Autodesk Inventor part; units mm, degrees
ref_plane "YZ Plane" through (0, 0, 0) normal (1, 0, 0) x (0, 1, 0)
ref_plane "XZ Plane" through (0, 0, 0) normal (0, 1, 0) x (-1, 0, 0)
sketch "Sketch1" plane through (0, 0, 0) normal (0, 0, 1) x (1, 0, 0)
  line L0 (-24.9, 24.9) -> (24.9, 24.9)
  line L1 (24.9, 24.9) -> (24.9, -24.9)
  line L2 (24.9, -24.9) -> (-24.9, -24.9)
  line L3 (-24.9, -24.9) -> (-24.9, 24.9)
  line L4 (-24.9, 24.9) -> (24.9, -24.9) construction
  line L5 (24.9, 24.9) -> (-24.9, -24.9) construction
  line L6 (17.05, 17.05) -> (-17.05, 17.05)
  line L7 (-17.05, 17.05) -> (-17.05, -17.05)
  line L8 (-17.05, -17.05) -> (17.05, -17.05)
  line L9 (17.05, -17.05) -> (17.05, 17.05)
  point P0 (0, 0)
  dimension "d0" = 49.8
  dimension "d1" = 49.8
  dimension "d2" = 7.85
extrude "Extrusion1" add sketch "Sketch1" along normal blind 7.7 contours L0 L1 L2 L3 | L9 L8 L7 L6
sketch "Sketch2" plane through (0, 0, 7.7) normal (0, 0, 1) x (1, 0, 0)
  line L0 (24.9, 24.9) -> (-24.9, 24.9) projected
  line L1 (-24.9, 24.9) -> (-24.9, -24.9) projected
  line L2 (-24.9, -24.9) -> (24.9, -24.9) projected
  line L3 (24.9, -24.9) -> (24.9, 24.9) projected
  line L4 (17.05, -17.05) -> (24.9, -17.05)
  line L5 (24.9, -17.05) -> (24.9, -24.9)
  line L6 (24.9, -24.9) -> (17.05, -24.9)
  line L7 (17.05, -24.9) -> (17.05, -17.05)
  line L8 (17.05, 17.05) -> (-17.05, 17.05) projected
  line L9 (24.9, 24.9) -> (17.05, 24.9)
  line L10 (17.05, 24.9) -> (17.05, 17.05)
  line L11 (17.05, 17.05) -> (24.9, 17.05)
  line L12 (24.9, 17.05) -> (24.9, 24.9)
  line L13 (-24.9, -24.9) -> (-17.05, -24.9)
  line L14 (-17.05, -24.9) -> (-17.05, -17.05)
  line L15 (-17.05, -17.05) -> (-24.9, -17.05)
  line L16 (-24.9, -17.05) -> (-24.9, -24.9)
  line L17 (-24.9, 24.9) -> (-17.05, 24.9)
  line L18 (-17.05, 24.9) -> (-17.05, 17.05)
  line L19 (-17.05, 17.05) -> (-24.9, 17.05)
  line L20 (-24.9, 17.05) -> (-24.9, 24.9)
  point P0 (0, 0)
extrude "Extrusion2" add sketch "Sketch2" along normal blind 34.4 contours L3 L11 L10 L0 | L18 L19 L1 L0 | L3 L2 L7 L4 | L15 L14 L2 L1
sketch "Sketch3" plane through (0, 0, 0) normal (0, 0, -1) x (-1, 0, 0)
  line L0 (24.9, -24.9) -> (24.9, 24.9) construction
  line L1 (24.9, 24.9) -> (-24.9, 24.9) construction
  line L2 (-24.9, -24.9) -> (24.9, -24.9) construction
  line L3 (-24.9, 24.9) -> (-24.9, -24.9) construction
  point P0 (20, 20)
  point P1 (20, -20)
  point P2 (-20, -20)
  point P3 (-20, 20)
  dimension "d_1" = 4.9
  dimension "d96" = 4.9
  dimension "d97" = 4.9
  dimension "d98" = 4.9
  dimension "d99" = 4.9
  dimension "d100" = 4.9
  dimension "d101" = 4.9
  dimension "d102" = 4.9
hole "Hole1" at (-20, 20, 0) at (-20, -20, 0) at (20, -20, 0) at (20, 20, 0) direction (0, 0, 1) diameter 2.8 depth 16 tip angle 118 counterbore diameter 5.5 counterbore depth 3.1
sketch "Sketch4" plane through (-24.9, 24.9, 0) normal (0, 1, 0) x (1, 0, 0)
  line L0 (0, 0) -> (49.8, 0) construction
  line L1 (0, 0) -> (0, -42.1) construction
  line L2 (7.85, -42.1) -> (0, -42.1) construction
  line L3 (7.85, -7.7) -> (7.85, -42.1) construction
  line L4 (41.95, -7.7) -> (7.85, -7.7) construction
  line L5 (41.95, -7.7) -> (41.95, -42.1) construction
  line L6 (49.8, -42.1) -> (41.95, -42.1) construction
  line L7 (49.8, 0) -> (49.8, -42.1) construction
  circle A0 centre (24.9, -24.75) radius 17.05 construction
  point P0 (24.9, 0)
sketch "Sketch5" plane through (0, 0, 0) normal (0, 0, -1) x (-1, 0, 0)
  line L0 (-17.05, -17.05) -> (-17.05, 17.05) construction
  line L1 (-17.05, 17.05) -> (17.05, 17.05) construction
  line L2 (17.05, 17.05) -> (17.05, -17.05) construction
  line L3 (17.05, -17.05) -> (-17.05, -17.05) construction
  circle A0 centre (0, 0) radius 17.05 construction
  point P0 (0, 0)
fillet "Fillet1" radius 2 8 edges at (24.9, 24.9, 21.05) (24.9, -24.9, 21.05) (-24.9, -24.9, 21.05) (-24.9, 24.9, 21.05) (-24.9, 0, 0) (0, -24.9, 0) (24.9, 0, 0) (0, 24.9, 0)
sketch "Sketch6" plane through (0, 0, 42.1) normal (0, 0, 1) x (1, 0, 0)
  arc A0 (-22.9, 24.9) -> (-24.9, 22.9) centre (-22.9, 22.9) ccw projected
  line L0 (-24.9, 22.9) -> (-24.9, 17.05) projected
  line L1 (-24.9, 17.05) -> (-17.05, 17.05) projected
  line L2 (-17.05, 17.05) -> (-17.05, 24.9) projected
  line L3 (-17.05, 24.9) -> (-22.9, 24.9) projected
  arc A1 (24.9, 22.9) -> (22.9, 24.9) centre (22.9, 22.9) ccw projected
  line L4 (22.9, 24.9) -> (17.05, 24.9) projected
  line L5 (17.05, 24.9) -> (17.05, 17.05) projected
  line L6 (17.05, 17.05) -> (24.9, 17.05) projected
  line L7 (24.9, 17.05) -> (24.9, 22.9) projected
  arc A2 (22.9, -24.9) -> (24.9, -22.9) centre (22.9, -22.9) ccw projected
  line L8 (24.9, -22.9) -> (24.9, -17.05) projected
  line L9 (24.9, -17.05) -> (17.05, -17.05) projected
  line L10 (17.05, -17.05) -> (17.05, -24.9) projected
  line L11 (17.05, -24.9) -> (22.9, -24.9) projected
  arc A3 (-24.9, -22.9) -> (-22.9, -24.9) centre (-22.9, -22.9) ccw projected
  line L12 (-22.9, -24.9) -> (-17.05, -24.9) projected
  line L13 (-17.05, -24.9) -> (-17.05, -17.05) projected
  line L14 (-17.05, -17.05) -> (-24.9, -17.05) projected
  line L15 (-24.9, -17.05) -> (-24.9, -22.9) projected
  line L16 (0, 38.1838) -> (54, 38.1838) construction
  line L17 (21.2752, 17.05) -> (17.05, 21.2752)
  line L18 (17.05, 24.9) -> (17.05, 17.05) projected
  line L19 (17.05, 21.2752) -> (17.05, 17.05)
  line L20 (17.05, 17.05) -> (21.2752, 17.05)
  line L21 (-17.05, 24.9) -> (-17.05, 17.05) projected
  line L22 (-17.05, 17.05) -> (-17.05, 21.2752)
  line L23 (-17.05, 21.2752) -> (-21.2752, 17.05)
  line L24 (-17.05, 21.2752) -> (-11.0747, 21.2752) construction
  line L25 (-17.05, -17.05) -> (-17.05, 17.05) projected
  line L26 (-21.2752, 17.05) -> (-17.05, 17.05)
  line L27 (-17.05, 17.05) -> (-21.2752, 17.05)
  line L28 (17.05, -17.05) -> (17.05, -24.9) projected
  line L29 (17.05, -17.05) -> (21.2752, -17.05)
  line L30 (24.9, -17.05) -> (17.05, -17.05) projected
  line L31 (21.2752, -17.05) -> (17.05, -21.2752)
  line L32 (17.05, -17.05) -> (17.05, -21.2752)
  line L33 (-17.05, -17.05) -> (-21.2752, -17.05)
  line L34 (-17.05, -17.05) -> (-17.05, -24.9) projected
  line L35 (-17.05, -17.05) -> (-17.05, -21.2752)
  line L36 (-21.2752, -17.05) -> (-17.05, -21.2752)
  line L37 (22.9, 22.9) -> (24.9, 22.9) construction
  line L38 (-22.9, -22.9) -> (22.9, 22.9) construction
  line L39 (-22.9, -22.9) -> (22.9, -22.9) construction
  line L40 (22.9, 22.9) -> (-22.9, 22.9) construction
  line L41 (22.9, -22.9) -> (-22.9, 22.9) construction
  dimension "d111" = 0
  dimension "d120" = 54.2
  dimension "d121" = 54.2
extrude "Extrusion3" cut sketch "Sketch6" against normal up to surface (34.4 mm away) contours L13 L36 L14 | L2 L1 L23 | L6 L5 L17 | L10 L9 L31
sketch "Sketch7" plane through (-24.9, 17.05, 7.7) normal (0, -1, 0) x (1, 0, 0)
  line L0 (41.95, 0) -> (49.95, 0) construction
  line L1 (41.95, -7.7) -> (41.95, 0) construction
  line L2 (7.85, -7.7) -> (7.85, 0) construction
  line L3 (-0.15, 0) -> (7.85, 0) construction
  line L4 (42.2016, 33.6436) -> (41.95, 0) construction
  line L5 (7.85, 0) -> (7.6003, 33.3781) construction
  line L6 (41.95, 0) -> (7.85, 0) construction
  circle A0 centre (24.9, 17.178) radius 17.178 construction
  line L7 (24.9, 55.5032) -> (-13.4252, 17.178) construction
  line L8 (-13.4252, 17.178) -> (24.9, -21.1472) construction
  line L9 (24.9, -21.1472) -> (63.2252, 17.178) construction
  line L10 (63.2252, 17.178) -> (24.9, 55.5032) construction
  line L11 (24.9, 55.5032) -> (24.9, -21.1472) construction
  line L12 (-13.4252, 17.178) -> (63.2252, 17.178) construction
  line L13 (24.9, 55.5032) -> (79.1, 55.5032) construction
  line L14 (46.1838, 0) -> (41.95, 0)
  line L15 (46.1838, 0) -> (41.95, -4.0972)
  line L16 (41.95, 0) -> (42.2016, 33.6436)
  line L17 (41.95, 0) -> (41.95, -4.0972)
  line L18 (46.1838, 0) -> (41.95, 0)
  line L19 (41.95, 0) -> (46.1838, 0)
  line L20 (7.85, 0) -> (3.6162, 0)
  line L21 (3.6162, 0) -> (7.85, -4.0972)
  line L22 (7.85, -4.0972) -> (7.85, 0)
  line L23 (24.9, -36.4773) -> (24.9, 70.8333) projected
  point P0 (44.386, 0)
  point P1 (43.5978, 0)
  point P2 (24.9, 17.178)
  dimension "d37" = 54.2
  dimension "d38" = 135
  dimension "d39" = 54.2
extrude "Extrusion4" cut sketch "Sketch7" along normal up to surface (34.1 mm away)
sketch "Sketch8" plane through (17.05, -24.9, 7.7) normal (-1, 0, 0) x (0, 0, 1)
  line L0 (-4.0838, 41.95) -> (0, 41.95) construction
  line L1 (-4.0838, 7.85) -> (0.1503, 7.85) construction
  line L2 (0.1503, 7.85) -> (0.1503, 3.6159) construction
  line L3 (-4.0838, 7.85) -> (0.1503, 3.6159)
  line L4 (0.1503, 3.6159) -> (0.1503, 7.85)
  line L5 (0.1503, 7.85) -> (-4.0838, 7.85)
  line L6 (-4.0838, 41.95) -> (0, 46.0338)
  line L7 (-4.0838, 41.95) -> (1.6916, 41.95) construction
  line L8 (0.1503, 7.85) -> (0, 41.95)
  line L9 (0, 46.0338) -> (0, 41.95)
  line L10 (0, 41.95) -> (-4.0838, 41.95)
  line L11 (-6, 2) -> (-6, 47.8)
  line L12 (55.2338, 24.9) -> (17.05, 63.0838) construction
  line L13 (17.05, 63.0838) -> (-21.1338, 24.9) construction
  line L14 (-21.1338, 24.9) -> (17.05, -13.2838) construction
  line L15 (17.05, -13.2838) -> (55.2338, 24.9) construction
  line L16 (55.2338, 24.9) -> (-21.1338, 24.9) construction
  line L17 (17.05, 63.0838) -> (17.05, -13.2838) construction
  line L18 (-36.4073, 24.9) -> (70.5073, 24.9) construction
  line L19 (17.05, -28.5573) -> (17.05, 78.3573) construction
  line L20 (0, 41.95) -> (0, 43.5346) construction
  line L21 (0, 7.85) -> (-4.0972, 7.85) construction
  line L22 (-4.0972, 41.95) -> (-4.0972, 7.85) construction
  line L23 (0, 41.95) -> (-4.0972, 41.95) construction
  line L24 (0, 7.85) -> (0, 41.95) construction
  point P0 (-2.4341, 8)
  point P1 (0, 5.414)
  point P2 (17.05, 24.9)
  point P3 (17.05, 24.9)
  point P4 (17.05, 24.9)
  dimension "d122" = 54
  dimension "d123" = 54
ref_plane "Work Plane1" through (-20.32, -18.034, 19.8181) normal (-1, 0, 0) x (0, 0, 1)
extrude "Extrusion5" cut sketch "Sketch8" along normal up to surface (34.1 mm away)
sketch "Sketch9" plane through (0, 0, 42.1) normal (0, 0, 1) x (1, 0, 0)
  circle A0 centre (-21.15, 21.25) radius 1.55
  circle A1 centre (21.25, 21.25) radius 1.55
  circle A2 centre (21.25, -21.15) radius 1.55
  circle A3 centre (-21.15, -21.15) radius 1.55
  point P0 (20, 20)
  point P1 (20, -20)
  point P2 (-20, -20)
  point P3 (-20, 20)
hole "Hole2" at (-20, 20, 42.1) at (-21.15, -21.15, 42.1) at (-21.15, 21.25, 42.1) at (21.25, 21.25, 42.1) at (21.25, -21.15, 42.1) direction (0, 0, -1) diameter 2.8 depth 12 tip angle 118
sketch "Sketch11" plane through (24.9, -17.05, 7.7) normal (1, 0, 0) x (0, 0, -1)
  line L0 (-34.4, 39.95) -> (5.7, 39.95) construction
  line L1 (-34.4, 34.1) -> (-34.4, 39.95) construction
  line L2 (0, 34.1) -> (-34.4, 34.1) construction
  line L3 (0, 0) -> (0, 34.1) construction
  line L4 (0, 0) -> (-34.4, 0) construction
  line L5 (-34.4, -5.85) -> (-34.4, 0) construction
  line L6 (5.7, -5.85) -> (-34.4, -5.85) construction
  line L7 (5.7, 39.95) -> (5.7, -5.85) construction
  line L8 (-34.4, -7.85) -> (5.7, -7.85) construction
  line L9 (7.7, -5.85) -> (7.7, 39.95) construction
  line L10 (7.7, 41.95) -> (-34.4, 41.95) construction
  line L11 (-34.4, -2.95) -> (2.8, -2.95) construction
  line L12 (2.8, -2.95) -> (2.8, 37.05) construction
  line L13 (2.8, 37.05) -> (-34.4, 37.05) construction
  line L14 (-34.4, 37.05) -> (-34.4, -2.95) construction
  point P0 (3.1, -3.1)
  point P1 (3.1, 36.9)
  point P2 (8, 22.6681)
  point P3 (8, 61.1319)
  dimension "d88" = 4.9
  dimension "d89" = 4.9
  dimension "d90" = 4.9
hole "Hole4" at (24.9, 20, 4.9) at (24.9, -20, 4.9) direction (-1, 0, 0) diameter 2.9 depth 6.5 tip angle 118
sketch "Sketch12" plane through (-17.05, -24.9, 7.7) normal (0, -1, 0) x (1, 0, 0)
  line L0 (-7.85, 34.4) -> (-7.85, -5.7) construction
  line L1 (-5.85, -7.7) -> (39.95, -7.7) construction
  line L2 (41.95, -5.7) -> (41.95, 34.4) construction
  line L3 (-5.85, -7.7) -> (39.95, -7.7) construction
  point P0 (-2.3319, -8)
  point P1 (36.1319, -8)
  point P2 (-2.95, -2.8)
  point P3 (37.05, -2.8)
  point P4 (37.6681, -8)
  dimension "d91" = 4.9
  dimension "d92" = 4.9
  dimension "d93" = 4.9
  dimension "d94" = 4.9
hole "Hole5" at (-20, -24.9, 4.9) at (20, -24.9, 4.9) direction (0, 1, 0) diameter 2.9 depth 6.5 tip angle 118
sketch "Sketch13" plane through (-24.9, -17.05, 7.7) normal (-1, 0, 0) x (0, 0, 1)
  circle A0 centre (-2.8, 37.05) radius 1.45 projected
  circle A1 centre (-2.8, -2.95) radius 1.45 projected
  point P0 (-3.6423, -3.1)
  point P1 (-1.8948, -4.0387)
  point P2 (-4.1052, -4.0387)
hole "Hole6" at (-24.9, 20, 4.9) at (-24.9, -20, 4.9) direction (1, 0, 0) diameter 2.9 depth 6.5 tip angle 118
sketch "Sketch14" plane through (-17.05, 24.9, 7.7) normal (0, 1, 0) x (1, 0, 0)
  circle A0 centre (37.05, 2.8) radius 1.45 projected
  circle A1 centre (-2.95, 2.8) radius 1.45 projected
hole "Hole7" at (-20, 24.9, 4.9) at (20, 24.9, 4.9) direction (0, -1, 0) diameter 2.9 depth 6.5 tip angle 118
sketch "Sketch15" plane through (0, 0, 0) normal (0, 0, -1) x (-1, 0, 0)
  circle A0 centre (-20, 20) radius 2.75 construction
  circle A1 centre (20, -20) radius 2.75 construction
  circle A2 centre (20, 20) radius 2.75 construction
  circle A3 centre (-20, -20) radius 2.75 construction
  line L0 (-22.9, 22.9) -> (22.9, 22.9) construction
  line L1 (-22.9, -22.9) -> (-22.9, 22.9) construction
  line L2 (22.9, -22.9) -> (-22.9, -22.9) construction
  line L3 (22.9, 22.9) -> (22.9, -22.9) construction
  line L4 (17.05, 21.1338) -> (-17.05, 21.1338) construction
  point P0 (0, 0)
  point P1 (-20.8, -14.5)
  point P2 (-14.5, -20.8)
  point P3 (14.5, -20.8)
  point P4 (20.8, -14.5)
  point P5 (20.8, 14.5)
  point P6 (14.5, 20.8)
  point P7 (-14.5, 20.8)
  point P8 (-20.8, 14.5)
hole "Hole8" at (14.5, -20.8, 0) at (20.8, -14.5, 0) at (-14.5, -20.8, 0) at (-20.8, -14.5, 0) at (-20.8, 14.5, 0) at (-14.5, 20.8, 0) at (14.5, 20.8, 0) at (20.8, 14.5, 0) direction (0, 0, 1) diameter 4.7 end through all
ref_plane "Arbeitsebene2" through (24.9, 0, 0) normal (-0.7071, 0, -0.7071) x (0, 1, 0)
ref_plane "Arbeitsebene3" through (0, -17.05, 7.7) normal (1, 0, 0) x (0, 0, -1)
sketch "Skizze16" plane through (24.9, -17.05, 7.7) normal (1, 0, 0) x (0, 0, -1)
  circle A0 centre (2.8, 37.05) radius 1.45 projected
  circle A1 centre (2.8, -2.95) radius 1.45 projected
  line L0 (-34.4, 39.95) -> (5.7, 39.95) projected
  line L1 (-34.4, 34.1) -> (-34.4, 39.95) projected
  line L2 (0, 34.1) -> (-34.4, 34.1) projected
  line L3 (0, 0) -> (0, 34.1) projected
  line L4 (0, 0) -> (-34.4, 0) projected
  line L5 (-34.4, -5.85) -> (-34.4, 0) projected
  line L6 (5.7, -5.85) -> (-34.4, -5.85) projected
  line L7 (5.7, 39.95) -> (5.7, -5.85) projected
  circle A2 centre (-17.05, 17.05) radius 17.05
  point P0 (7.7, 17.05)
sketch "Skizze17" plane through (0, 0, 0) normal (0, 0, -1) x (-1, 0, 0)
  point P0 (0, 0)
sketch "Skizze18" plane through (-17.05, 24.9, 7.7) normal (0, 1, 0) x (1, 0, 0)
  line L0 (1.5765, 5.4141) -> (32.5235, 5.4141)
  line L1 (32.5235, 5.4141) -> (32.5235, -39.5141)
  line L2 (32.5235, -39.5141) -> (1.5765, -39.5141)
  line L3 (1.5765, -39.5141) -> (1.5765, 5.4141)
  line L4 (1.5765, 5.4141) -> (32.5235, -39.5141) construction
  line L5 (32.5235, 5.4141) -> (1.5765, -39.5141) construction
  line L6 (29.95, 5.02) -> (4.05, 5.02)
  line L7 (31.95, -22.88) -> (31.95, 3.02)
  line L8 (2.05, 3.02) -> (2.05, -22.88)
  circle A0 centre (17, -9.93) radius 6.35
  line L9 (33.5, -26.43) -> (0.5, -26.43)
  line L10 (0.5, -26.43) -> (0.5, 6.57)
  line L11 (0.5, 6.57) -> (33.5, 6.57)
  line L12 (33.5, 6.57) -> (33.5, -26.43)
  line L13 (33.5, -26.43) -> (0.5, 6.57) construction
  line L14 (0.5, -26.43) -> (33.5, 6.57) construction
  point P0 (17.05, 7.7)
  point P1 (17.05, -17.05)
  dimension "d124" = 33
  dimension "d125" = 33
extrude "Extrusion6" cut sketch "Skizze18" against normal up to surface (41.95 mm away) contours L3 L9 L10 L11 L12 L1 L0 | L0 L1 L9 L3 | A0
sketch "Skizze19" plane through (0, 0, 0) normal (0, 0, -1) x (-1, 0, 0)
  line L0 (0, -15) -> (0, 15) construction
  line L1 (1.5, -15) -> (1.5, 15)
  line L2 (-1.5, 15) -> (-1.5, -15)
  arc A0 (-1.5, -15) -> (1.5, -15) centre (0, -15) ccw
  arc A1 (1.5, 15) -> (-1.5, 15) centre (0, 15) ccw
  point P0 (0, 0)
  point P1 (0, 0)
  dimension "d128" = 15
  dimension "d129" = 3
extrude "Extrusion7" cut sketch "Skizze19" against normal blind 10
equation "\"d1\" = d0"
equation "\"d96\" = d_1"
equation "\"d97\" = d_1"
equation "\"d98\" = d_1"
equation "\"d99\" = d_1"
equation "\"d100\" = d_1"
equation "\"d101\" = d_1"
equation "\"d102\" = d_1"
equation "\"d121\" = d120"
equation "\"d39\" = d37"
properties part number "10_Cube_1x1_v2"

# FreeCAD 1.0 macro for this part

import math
import FreeCAD as App
import Part
import Sketcher

V = App.Vector
Q = App.Units.Quantity


def edges_at(feature, points):
    """Names of the edges that pass closest to the given points."""
    edges = feature.Shape.Edges
    near = lambda p: min(range(len(edges)), key=lambda i: edges[i].distToShape(Part.Vertex(*p))[0])
    return sorted({f"Edge{near(p) + 1}" for p in points})

doc = App.newDocument("Part")
body = doc.addObject("PartDesign::Body", "Body")

# Sketch on XY plane
sketch1 = body.newObject("Sketcher::SketchObject", "Sketch")
sketch1.AttachmentSupport = (doc.getObject("XY_Plane"), [""])
sketch1.MapMode = "FlatFace"
sketch1.addGeometry([
    Part.LineSegment(V(24.9, 24.9, 0), V(-24.9, 24.9, 0)),
    Part.LineSegment(V(-24.9, 24.9, 0), V(-24.9, -24.9, 0)),
    Part.LineSegment(V(-24.9, -24.9, 0), V(24.9, -24.9, 0)),
    Part.LineSegment(V(24.9, -24.9, 0), V(24.9, 24.9, 0)),
], False)
sketch1.addConstraint([
    Sketcher.Constraint("Coincident", 0, 2, 1, 1),
    Sketcher.Constraint("Coincident", 1, 2, 2, 1),
    Sketcher.Constraint("Coincident", 2, 2, 3, 1),
    Sketcher.Constraint("Coincident", 3, 2, 0, 1),
    Sketcher.Constraint("Horizontal", 0),
    Sketcher.Constraint("Vertical", 1),
    Sketcher.Constraint("Horizontal", 2),
    Sketcher.Constraint("Vertical", 3),
    Sketcher.Constraint("Symmetric", 0, 2, 2, 2, -1, 1),
    Sketcher.Constraint("Equal", 2, 1),
    Sketcher.Constraint("DistanceX", 0, 2, 0, 1, 49.8),
])
pad1 = body.newObject("PartDesign::Pad", "Pad")
pad1.Profile = sketch1
pad1.Length = 7.7

# Sketch on XY plane
sketch2 = body.newObject("Sketcher::SketchObject", "Sketch001")
sketch2.AttachmentSupport = (doc.getObject("XY_Plane"), [""])
sketch2.MapMode = "FlatFace"
sketch2.AttachmentOffset = App.Placement(V(0, 0, 7.7), App.Rotation())
sketch2.addGeometry([
    Part.LineSegment(V(24.9, 17.05, 0), V(24.9, 24.9, 0)),  # 0
    Part.LineSegment(V(24.9, 24.9, 0), V(17.05, 24.9, 0)),  # 1
    Part.LineSegment(V(17.05, 24.9, 0), V(17.05, 17.05, 0)),  # 2
    Part.LineSegment(V(17.05, 17.05, 0), V(24.9, 17.05, 0)),  # 3
    Part.LineSegment(V(-17.05, 17.05, 0), V(-17.05, 24.9, 0)),  # 4
    Part.LineSegment(V(-17.05, 24.9, 0), V(-24.9, 24.9, 0)),  # 5
    Part.LineSegment(V(-24.9, 24.9, 0), V(-24.9, 17.05, 0)),  # 6
    Part.LineSegment(V(-24.9, 17.05, 0), V(-17.05, 17.05, 0)),  # 7
    Part.LineSegment(V(24.9, -24.9, 0), V(24.9, -17.05, 0)),  # 8
    Part.LineSegment(V(24.9, -17.05, 0), V(17.05, -17.05, 0)),  # 9
    Part.LineSegment(V(17.05, -17.05, 0), V(17.05, -24.9, 0)),  # 10
    Part.LineSegment(V(17.05, -24.9, 0), V(24.9, -24.9, 0)),  # 11
    Part.LineSegment(V(-17.05, -17.05, 0), V(-24.9, -17.05, 0)),  # 12
    Part.LineSegment(V(-24.9, -17.05, 0), V(-24.9, -24.9, 0)),  # 13
    Part.LineSegment(V(-24.9, -24.9, 0), V(-17.05, -24.9, 0)),  # 14
    Part.LineSegment(V(-17.05, -24.9, 0), V(-17.05, -17.05, 0)),  # 15
], False)
sketch2.addConstraint([
    Sketcher.Constraint("Coincident", 0, 2, 1, 1),
    Sketcher.Constraint("Coincident", 1, 2, 2, 1),
    Sketcher.Constraint("Coincident", 2, 2, 3, 1),
    Sketcher.Constraint("Coincident", 3, 2, 0, 1),
    Sketcher.Constraint("Coincident", 4, 2, 5, 1),
    Sketcher.Constraint("Coincident", 5, 2, 6, 1),
    Sketcher.Constraint("Coincident", 6, 2, 7, 1),
    Sketcher.Constraint("Coincident", 7, 2, 4, 1),
    Sketcher.Constraint("Coincident", 8, 2, 9, 1),
    Sketcher.Constraint("Coincident", 9, 2, 10, 1),
    Sketcher.Constraint("Coincident", 10, 2, 11, 1),
    Sketcher.Constraint("Coincident", 11, 2, 8, 1),
    Sketcher.Constraint("Coincident", 12, 2, 13, 1),
    Sketcher.Constraint("Coincident", 13, 2, 14, 1),
    Sketcher.Constraint("Coincident", 14, 2, 15, 1),
    Sketcher.Constraint("Coincident", 15, 2, 12, 1),
    Sketcher.Constraint("Vertical", 0),
    Sketcher.Constraint("Horizontal", 1),
    Sketcher.Constraint("Vertical", 2),
    Sketcher.Constraint("Horizontal", 3),
    Sketcher.Constraint("Vertical", 4),
    Sketcher.Constraint("Horizontal", 5),
    Sketcher.Constraint("Vertical", 6),
    Sketcher.Constraint("Horizontal", 7),
    Sketcher.Constraint("Vertical", 8),
    Sketcher.Constraint("Horizontal", 9),
    Sketcher.Constraint("Vertical", 10),
    Sketcher.Constraint("Horizontal", 11),
    Sketcher.Constraint("Horizontal", 12),
    Sketcher.Constraint("Vertical", 13),
    Sketcher.Constraint("Horizontal", 14),
    Sketcher.Constraint("Vertical", 15),
    Sketcher.Constraint("Symmetric", 6, 2, 8, 2, -1, 1),
    Sketcher.Constraint("Symmetric", 4, 2, 10, 2, -1, 1),
    Sketcher.Constraint("Symmetric", 3, 2, 12, 2, -1, 1),
    Sketcher.Constraint("Symmetric", 1, 2, 14, 2, -1, 1),
    Sketcher.Constraint("Symmetric", 1, 2, 4, 2, -2),
    Sketcher.Constraint("Symmetric", 3, 2, 6, 2, -2),
    Sketcher.Constraint("Equal", 14, 0),
    Sketcher.Constraint("DistanceX", 1, 2, 1, 1, 7.85),
    Sketcher.Constraint("DistanceX", -1, 1, 0, 2, 24.9),
    Sketcher.Constraint("DistanceY", -1, 1, 0, 2, 24.9),
])
pad2 = body.newObject("PartDesign::Pad", "Pad001")
pad2.Profile = sketch2
pad2.Length = 34.4

# Sketch on XY plane
sketch3 = body.newObject("Sketcher::SketchObject", "Sketch002")
sketch3.AttachmentSupport = (doc.getObject("XY_Plane"), [""])
sketch3.MapMode = "FlatFace"
sketch3.addGeometry([
    Part.Circle(V(-20, 20, 0), V(0, 0, 1), 1.4),
    Part.Circle(V(-20, -20, 0), V(0, 0, 1), 1.4),
    Part.Circle(V(20, -20, 0), V(0, 0, 1), 1.4),
    Part.Circle(V(20, 20, 0), V(0, 0, 1), 1.4),
], False)
sketch3.addConstraint([
    Sketcher.Constraint("Equal", 0, 1),
    Sketcher.Constraint("Equal", 1, 2),
    Sketcher.Constraint("Equal", 2, 3),
    Sketcher.Constraint("Symmetric", 0, 3, 2, 3, -1, 1),
    Sketcher.Constraint("Symmetric", 1, 3, 3, 3, -1, 1),
    Sketcher.Constraint("Symmetric", 1, 3, 2, 3, -2),
    Sketcher.Constraint("Diameter", 0, 2.8),
    Sketcher.Constraint("DistanceX", 0, 3, -1, 1, 20.0),
    Sketcher.Constraint("DistanceY", -1, 1, 0, 3, 20.0),
])
doc.recompute()
hole = body.newObject("PartDesign::Hole", "Hole")
hole.Profile = sketch3
hole.ThreadType = "None"
hole.Diameter = 2.8
hole.DepthType = "Dimension"
hole.Depth = 16
hole.DrillPoint = "Angled"
hole.DrillPointAngle = 118
hole.HoleCutType = "Counterbore"
hole.HoleCutDiameter = 5.5
hole.HoleCutDepth = 3.1
hole.Reversed = True
doc.recompute()

fillet = body.newObject("PartDesign::Fillet", "Fillet")
fillet.Base = (hole, edges_at(hole, [
    (24.9, 24.9, 21.05),
    (24.9, -24.9, 21.05),
    (-24.9, -24.9, 21.05),
    (-24.9, 24.9, 21.05),
    (-24.9, 0, 0),
    (0, -24.9, 0),
    (24.9, 0, 0),
    (0, 24.9, 0),
]))
fillet.Radius = 2

# Sketch on XY plane
sketch4 = body.newObject("Sketcher::SketchObject", "Sketch003")
sketch4.AttachmentSupport = (doc.getObject("XY_Plane"), [""])
sketch4.MapMode = "FlatFace"
sketch4.AttachmentOffset = App.Placement(V(0, 0, 42.1), App.Rotation())
sketch4.addGeometry([
    Part.LineSegment(V(-17.05, -21.2752, 0), V(-17.05, -17.05, 0)),  # 0
    Part.LineSegment(V(-17.05, -17.05, 0), V(-21.2752, -17.05, 0)),  # 1
    Part.LineSegment(V(-21.2752, -17.05, 0), V(-17.05, -21.2752, 0)),  # 2
    Part.LineSegment(V(-17.05, 17.05, 0), V(-17.05, 21.2752, 0)),  # 3
    Part.LineSegment(V(-17.05, 21.2752, 0), V(-21.2752, 17.05, 0)),  # 4
    Part.LineSegment(V(-21.2752, 17.05, 0), V(-17.05, 17.05, 0)),  # 5
    Part.LineSegment(V(17.05, 17.05, 0), V(21.2752, 17.05, 0)),  # 6
    Part.LineSegment(V(21.2752, 17.05, 0), V(17.05, 21.2752, 0)),  # 7
    Part.LineSegment(V(17.05, 21.2752, 0), V(17.05, 17.05, 0)),  # 8
    Part.LineSegment(V(17.05, -17.05, 0), V(17.05, -21.2752, 0)),  # 9
    Part.LineSegment(V(17.05, -21.2752, 0), V(21.2752, -17.05, 0)),  # 10
    Part.LineSegment(V(21.2752, -17.05, 0), V(17.05, -17.05, 0)),  # 11
], False)
sketch4.addConstraint([
    Sketcher.Constraint("Coincident", 0, 2, 1, 1),
    Sketcher.Constraint("Coincident", 1, 2, 2, 1),
    Sketcher.Constraint("Coincident", 2, 2, 0, 1),
    Sketcher.Constraint("Coincident", 3, 2, 4, 1),
    Sketcher.Constraint("Coincident", 4, 2, 5, 1),
    Sketcher.Constraint("Coincident", 5, 2, 3, 1),
    Sketcher.Constraint("Coincident", 6, 2, 7, 1),
    Sketcher.Constraint("Coincident", 7, 2, 8, 1),
    Sketcher.Constraint("Coincident", 8, 2, 6, 1),
    Sketcher.Constraint("Coincident", 9, 2, 10, 1),
    Sketcher.Constraint("Coincident", 10, 2, 11, 1),
    Sketcher.Constraint("Coincident", 11, 2, 9, 1),
    Sketcher.Constraint("Vertical", 0),
    Sketcher.Constraint("Horizontal", 1),
    Sketcher.Constraint("Vertical", 3),
    Sketcher.Constraint("Horizontal", 5),
    Sketcher.Constraint("Horizontal", 6),
    Sketcher.Constraint("Vertical", 8),
    Sketcher.Constraint("Vertical", 9),
    Sketcher.Constraint("Horizontal", 11),
    Sketcher.Constraint("Symmetric", 1, 2, 6, 2, -1, 1),
    Sketcher.Constraint("Symmetric", 2, 2, 7, 2, -1, 1),
    Sketcher.Constraint("Symmetric", 3, 2, 9, 2, -1, 1),
    Sketcher.Constraint("Symmetric", 4, 2, 10, 2, -1, 1),
    Sketcher.Constraint("Symmetric", 4, 2, 6, 2, -2),
    Sketcher.Constraint("Symmetric", 3, 2, 7, 2, -2),
    Sketcher.Constraint("Perpendicular", 2, 4),
    Sketcher.Constraint("DistanceY", 1, 2, 4, 2, 34.1),
    Sketcher.Constraint("DistanceX", 3, 2, 7, 2, 34.1),
    Sketcher.Constraint("DistanceX", 1, 2, 1, 1, 4.2252),
])
pocket1 = body.newObject("PartDesign::Pocket", "Pocket")
pocket1.Profile = sketch4
pocket1.Length = 34.4

# Sketch on XZ plane
sketch5 = body.newObject("Sketcher::SketchObject", "Sketch004")
sketch5.AttachmentSupport = (doc.getObject("XZ_Plane"), [""])
sketch5.MapMode = "FlatFace"
sketch5.AttachmentOffset = App.Placement(V(0, 0, -17.05), App.Rotation())
sketch5.addGeometry([
    Part.LineSegment(V(17.05, 3.6028, 0), V(21.2838, 7.7, 0)),  # 0
    Part.LineSegment(V(21.2838, 7.7, 0), V(17.05, 7.7, 0)),  # 1
    Part.LineSegment(V(17.05, 7.7, 0), V(17.05, 3.6028, 0)),  # 2
    Part.LineSegment(V(-17.05, 3.6028, 0), V(-17.05, 7.7, 0)),  # 3
    Part.LineSegment(V(-17.05, 7.7, 0), V(-21.2838, 7.7, 0)),  # 4
    Part.LineSegment(V(-21.2838, 7.7, 0), V(-17.05, 3.6028, 0)),  # 5
], False)
sketch5.addConstraint([
    Sketcher.Constraint("Coincident", 0, 2, 1, 1),
    Sketcher.Constraint("Coincident", 1, 2, 2, 1),
    Sketcher.Constraint("Coincident", 2, 2, 0, 1),
    Sketcher.Constraint("Coincident", 3, 2, 4, 1),
    Sketcher.Constraint("Coincident", 4, 2, 5, 1),
    Sketcher.Constraint("Coincident", 5, 2, 3, 1),
    Sketcher.Constraint("Horizontal", 1),
    Sketcher.Constraint("Vertical", 2),
    Sketcher.Constraint("Vertical", 3),
    Sketcher.Constraint("Horizontal", 4),
    Sketcher.Constraint("Symmetric", 1, 2, 3, 2, -2),
    Sketcher.Constraint("Horizontal", 2, 2, 5, 2),
    Sketcher.Constraint("Equal", 1, 4),
    Sketcher.Constraint("DistanceY", -1, 1, 0, 2, 7.7),
    Sketcher.Constraint("Angle", 0, Q("44.0606 deg")),
    Sketcher.Constraint("DistanceX", 3, 2, 1, 2, 34.1),
    Sketcher.Constraint("DistanceX", 1, 2, 1, 1, 4.2338),
])
pocket2 = body.newObject("PartDesign::Pocket", "Pocket001")
pocket2.Profile = sketch5
pocket2.Length = 34.1
pocket2.Reversed = True

# Sketch on YZ plane
sketch6 = body.newObject("Sketcher::SketchObject", "Sketch005")
sketch6.AttachmentSupport = (doc.getObject("YZ_Plane"), [""])
sketch6.MapMode = "FlatFace"
sketch6.AttachmentOffset = App.Placement(V(0, 0, 17.05), App.Rotation())
sketch6.addGeometry([
    Part.LineSegment(V(-17.05, 7.8503, 0), V(-17.05, 3.6162, 0)),  # 0
    Part.LineSegment(V(-17.05, 3.6162, 0), V(-21.2841, 7.8503, 0)),  # 1
    Part.LineSegment(V(-21.2841, 7.8503, 0), V(-17.05, 7.8503, 0)),  # 2
    Part.LineSegment(V(17.05, 3.6162, 0), V(17.05, 7.7, 0)),  # 3
    Part.LineSegment(V(17.05, 7.7, 0), V(21.1338, 7.7, 0)),  # 4
    Part.LineSegment(V(21.1338, 7.7, 0), V(17.05, 3.6162, 0)),  # 5
], False)
sketch6.addConstraint([
    Sketcher.Constraint("Coincident", 0, 2, 1, 1),
    Sketcher.Constraint("Coincident", 1, 2, 2, 1),
    Sketcher.Constraint("Coincident", 2, 2, 0, 1),
    Sketcher.Constraint("Coincident", 3, 2, 4, 1),
    Sketcher.Constraint("Coincident", 4, 2, 5, 1),
    Sketcher.Constraint("Coincident", 5, 2, 3, 1),
    Sketcher.Constraint("Vertical", 0),
    Sketcher.Constraint("Horizontal", 2),
    Sketcher.Constraint("Vertical", 3),
    Sketcher.Constraint("Horizontal", 4),
    Sketcher.Constraint("Symmetric", 0, 2, 5, 2, -2),
    Sketcher.Constraint("Perpendicular", 1, 5),
    Sketcher.Constraint("Equal", 2, 0),
    Sketcher.Constraint("DistanceY", -1, 1, 3, 2, 7.7),
    Sketcher.Constraint("DistanceX", 2, 2, 3, 2, 34.1),
    Sketcher.Constraint("DistanceX", 2, 1, 2, 2, 4.234),
    Sketcher.Constraint("DistanceX", 4, 1, 4, 2, 4.0838),
])
pocket3 = body.newObject("PartDesign::Pocket", "Pocket002")
pocket3.Profile = sketch6
pocket3.Length = 34.1

# Sketch on XY plane
sketch7 = body.newObject("Sketcher::SketchObject", "Sketch006")
sketch7.AttachmentSupport = (doc.getObject("XY_Plane"), [""])
sketch7.MapMode = "FlatFace"
sketch7.AttachmentOffset = App.Placement(V(0, 0, 42.1), App.Rotation())
sketch7.addGeometry([
    Part.Circle(V(-20, 20, 0), V(0, 0, 1), 1.4),  # 0
    Part.Circle(V(-21.15, -21.15, 0), V(0, 0, 1), 1.4),  # 1
    Part.Circle(V(-21.15, 21.25, 0), V(0, 0, 1), 1.4),  # 2
    Part.Circle(V(21.25, 21.25, 0), V(0, 0, 1), 1.4),  # 3
    Part.Circle(V(21.25, -21.15, 0), V(0, 0, 1), 1.4),  # 4
], False)
sketch7.addConstraint([
    Sketcher.Constraint("Equal", 0, 1),
    Sketcher.Constraint("Equal", 1, 2),
    Sketcher.Constraint("Equal", 2, 3),
    Sketcher.Constraint("Equal", 3, 4),
    Sketcher.Constraint("Horizontal", 2, 3, 3, 3),
    Sketcher.Constraint("Horizontal", 1, 3, 4, 3),
    Sketcher.Constraint("Vertical", 1, 3, 2, 3),
    Sketcher.Constraint("Vertical", 3, 3, 4, 3),
    Sketcher.Constraint("Diameter", 0, 2.8),
    Sketcher.Constraint("DistanceX", 0, 3, -1, 1, 20.0),
    Sketcher.Constraint("DistanceY", -1, 1, 0, 3, 20.0),
    Sketcher.Constraint("DistanceY", 1, 3, 2, 3, 42.4),
    Sketcher.Constraint("DistanceX", 2, 3, 3, 3, 42.4),
    Sketcher.Constraint("DistanceX", 1, 3, -1, 1, 21.15),
    Sketcher.Constraint("DistanceY", 1, 3, -1, 1, 21.15),
])
doc.recompute()
hole2 = body.newObject("PartDesign::Hole", "Hole001")
hole2.Profile = sketch7
hole2.ThreadType = "None"
hole2.Diameter = 2.8
hole2.DepthType = "Dimension"
hole2.Depth = 12
hole2.DrillPoint = "Angled"
hole2.DrillPointAngle = 118

# Sketch on YZ plane
sketch8 = body.newObject("Sketcher::SketchObject", "Sketch007")
sketch8.AttachmentSupport = (doc.getObject("YZ_Plane"), [""])
sketch8.MapMode = "FlatFace"
sketch8.AttachmentOffset = App.Placement(V(0, 0, 24.9), App.Rotation())
sketch8.addGeometry([
    Part.Circle(V(20, 4.9, 0), V(0, 0, 1), 1.45),
    Part.Circle(V(-20, 4.9, 0), V(0, 0, 1), 1.45),
], False)
sketch8.addConstraint([
    Sketcher.Constraint("Equal", 0, 1),
    Sketcher.Constraint("Symmetric", 0, 3, 1, 3, -2),
    Sketcher.Constraint("Diameter", 0, 2.9),
    Sketcher.Constraint("DistanceX", -1, 1, 0, 3, 20.0),
    Sketcher.Constraint("DistanceY", -1, 1, 0, 3, 4.9),
])
doc.recompute()
hole3 = body.newObject("PartDesign::Hole", "Hole002")
hole3.Profile = sketch8
hole3.ThreadType = "None"
hole3.Diameter = 2.9
hole3.DepthType = "Dimension"
hole3.Depth = 6.5
hole3.DrillPoint = "Angled"
hole3.DrillPointAngle = 118

# Sketch on XZ plane
sketch9 = body.newObject("Sketcher::SketchObject", "Sketch008")
sketch9.AttachmentSupport = (doc.getObject("XZ_Plane"), [""])
sketch9.MapMode = "FlatFace"
sketch9.AttachmentOffset = App.Placement(V(0, 0, 24.9), App.Rotation())
sketch9.addGeometry([
    Part.Circle(V(-20, 4.9, 0), V(0, 0, 1), 1.45),
    Part.Circle(V(20, 4.9, 0), V(0, 0, 1), 1.45),
], False)
sketch9.addConstraint([
    Sketcher.Constraint("Equal", 0, 1),
    Sketcher.Constraint("Symmetric", 0, 3, 1, 3, -2),
    Sketcher.Constraint("Diameter", 0, 2.9),
    Sketcher.Constraint("DistanceX", 0, 3, -1, 1, 20.0),
    Sketcher.Constraint("DistanceY", -1, 1, 0, 3, 4.9),
])
doc.recompute()
hole4 = body.newObject("PartDesign::Hole", "Hole003")
hole4.Profile = sketch9
hole4.ThreadType = "None"
hole4.Diameter = 2.9
hole4.DepthType = "Dimension"
hole4.Depth = 6.5
hole4.DrillPoint = "Angled"
hole4.DrillPointAngle = 118

# Sketch on YZ plane
sketch10 = body.newObject("Sketcher::SketchObject", "Sketch009")
sketch10.AttachmentSupport = (doc.getObject("YZ_Plane"), [""])
sketch10.MapMode = "FlatFace"
sketch10.AttachmentOffset = App.Placement(V(0, 0, -24.9), App.Rotation())
sketch10.addGeometry([
    Part.Circle(V(20, 4.9, 0), V(0, 0, 1), 1.45),
    Part.Circle(V(-20, 4.9, 0), V(0, 0, 1), 1.45),
], False)
sketch10.addConstraint([
    Sketcher.Constraint("Equal", 0, 1),
    Sketcher.Constraint("Symmetric", 0, 3, 1, 3, -2),
    Sketcher.Constraint("Diameter", 0, 2.9),
    Sketcher.Constraint("DistanceX", -1, 1, 0, 3, 20.0),
    Sketcher.Constraint("DistanceY", -1, 1, 0, 3, 4.9),
])
doc.recompute()
hole5 = body.newObject("PartDesign::Hole", "Hole004")
hole5.Profile = sketch10
hole5.ThreadType = "None"
hole5.Diameter = 2.9
hole5.DepthType = "Dimension"
hole5.Depth = 6.5
hole5.DrillPoint = "Angled"
hole5.DrillPointAngle = 118
hole5.Reversed = True

# Sketch on XZ plane
sketch11 = body.newObject("Sketcher::SketchObject", "Sketch010")
sketch11.AttachmentSupport = (doc.getObject("XZ_Plane"), [""])
sketch11.MapMode = "FlatFace"
sketch11.AttachmentOffset = App.Placement(V(0, 0, -24.9), App.Rotation())
sketch11.addGeometry([
    Part.Circle(V(-20, 4.9, 0), V(0, 0, 1), 1.45),
    Part.Circle(V(20, 4.9, 0), V(0, 0, 1), 1.45),
], False)
sketch11.addConstraint([
    Sketcher.Constraint("Equal", 0, 1),
    Sketcher.Constraint("Symmetric", 0, 3, 1, 3, -2),
    Sketcher.Constraint("Diameter", 0, 2.9),
    Sketcher.Constraint("DistanceX", 0, 3, -1, 1, 20.0),
    Sketcher.Constraint("DistanceY", -1, 1, 0, 3, 4.9),
])
doc.recompute()
hole6 = body.newObject("PartDesign::Hole", "Hole005")
hole6.Profile = sketch11
hole6.ThreadType = "None"
hole6.Diameter = 2.9
hole6.DepthType = "Dimension"
hole6.Depth = 6.5
hole6.DrillPoint = "Angled"
hole6.DrillPointAngle = 118
hole6.Reversed = True

# Sketch on XY plane
sketch12 = body.newObject("Sketcher::SketchObject", "Sketch011")
sketch12.AttachmentSupport = (doc.getObject("XY_Plane"), [""])
sketch12.MapMode = "FlatFace"
sketch12.addGeometry([
    Part.Circle(V(14.5, -20.8, 0), V(0, 0, 1), 2.35),  # 0
    Part.Circle(V(20.8, -14.5, 0), V(0, 0, 1), 2.35),  # 1
    Part.Circle(V(-14.5, -20.8, 0), V(0, 0, 1), 2.35),  # 2
    Part.Circle(V(-20.8, -14.5, 0), V(0, 0, 1), 2.35),  # 3
    Part.Circle(V(-20.8, 14.5, 0), V(0, 0, 1), 2.35),  # 4
    Part.Circle(V(-14.5, 20.8, 0), V(0, 0, 1), 2.35),  # 5
    Part.Circle(V(14.5, 20.8, 0), V(0, 0, 1), 2.35),  # 6
    Part.Circle(V(20.8, 14.5, 0), V(0, 0, 1), 2.35),  # 7
], False)
sketch12.addConstraint([
    Sketcher.Constraint("Equal", 0, 1),
    Sketcher.Constraint("Equal", 1, 2),
    Sketcher.Constraint("Equal", 2, 3),
    Sketcher.Constraint("Equal", 3, 4),
    Sketcher.Constraint("Equal", 4, 5),
    Sketcher.Constraint("Equal", 5, 6),
    Sketcher.Constraint("Equal", 6, 7),
    Sketcher.Constraint("Symmetric", 1, 3, 4, 3, -1, 1),
    Sketcher.Constraint("Symmetric", 0, 3, 5, 3, -1, 1),
    Sketcher.Constraint("Symmetric", 2, 3, 6, 3, -1, 1),
    Sketcher.Constraint("Symmetric", 3, 3, 7, 3, -1, 1),
    Sketcher.Constraint("Symmetric", 0, 3, 2, 3, -2),
    Sketcher.Constraint("Symmetric", 1, 3, 3, 3, -2),
    Sketcher.Constraint("Diameter", 0, 4.7),
    Sketcher.Constraint("DistanceX", 2, 3, 0, 3, 29.0),
    Sketcher.Constraint("DistanceY", 3, 3, 4, 3, 29.0),
    Sketcher.Constraint("DistanceY", 0, 3, -1, 1, 20.8),
    Sketcher.Constraint("DistanceX", -1, 1, 1, 3, 20.8),
])
doc.recompute()
hole7 = body.newObject("PartDesign::Hole", "Hole006")
hole7.Profile = sketch12
hole7.ThreadType = "None"
hole7.Diameter = 4.7
hole7.DepthType = "ThroughAll"
hole7.Reversed = True

# Sketch on XZ plane
sketch13 = body.newObject("Sketcher::SketchObject", "Sketch012")
sketch13.AttachmentSupport = (doc.getObject("XZ_Plane"), [""])
sketch13.MapMode = "FlatFace"
sketch13.AttachmentOffset = App.Placement(V(0, 0, -24.9), App.Rotation())
sketch13.addGeometry([
    Part.LineSegment(V(-16.55, 34.13, 0), V(16.45, 34.13, 0)),
    Part.LineSegment(V(16.45, 34.13, 0), V(16.45, 1.13, 0)),
    Part.LineSegment(V(16.45, 1.13, 0), V(-16.55, 1.13, 0)),
    Part.LineSegment(V(-16.55, 1.13, 0), V(-16.55, 34.13, 0)),
], False)
sketch13.addConstraint([
    Sketcher.Constraint("Coincident", 0, 2, 1, 1),
    Sketcher.Constraint("Coincident", 1, 2, 2, 1),
    Sketcher.Constraint("Coincident", 2, 2, 3, 1),
    Sketcher.Constraint("Coincident", 3, 2, 0, 1),
    Sketcher.Constraint("Horizontal", 0),
    Sketcher.Constraint("Vertical", 1),
    Sketcher.Constraint("Horizontal", 2),
    Sketcher.Constraint("Vertical", 3),
    Sketcher.Constraint("Equal", 2, 1),
    Sketcher.Constraint("DistanceX", 0, 1, 0, 2, 33.0),
    Sketcher.Constraint("DistanceX", -1, 1, 0, 2, 16.45),
    Sketcher.Constraint("DistanceY", -1, 1, 0, 2, 34.13),
])
pocket4 = body.newObject("PartDesign::Pocket", "Pocket003")
pocket4.Profile = sketch13
pocket4.Length = 41.95
pocket4.Reversed = True

# Sketch on XY plane
sketch14 = body.newObject("Sketcher::SketchObject", "Sketch013")
sketch14.AttachmentSupport = (doc.getObject("XY_Plane"), [""])
sketch14.MapMode = "FlatFace"
sketch14.addGeometry([
    Part.ArcOfCircle(Part.Circle(V(0, -15, 0), V(0, 0, 1), 1.5), math.radians(180), math.radians(360)),
    Part.LineSegment(V(-1.5, -15, 0), V(-1.5, 15, 0)),
    Part.ArcOfCircle(Part.Circle(V(0, 15, 0), V(0, 0, 1), 1.5), math.radians(0), math.radians(180)),
    Part.LineSegment(V(1.5, 15, 0), V(1.5, -15, 0)),
], False)
sketch14.addConstraint([
    Sketcher.Constraint("Tangent", 0, 1, 1, 1),
    Sketcher.Constraint("Tangent", 1, 2, 2, 2),
    Sketcher.Constraint("Tangent", 2, 1, 3, 1),
    Sketcher.Constraint("Tangent", 3, 2, 0, 2),
    Sketcher.Constraint("Vertical", 1),
    Sketcher.Constraint("Vertical", 3),
    Sketcher.Constraint("Symmetric", 0, 3, 2, 3, -1, 1),
    Sketcher.Constraint("Radius", 0, 1.5),
    Sketcher.Constraint("DistanceY", 0, 3, -1, 1, 15.0),
])
pocket5 = body.newObject("PartDesign::Pocket", "Pocket004")
pocket5.Profile = sketch14
pocket5.Length = 10
pocket5.Reversed = True

doc.recompute()
